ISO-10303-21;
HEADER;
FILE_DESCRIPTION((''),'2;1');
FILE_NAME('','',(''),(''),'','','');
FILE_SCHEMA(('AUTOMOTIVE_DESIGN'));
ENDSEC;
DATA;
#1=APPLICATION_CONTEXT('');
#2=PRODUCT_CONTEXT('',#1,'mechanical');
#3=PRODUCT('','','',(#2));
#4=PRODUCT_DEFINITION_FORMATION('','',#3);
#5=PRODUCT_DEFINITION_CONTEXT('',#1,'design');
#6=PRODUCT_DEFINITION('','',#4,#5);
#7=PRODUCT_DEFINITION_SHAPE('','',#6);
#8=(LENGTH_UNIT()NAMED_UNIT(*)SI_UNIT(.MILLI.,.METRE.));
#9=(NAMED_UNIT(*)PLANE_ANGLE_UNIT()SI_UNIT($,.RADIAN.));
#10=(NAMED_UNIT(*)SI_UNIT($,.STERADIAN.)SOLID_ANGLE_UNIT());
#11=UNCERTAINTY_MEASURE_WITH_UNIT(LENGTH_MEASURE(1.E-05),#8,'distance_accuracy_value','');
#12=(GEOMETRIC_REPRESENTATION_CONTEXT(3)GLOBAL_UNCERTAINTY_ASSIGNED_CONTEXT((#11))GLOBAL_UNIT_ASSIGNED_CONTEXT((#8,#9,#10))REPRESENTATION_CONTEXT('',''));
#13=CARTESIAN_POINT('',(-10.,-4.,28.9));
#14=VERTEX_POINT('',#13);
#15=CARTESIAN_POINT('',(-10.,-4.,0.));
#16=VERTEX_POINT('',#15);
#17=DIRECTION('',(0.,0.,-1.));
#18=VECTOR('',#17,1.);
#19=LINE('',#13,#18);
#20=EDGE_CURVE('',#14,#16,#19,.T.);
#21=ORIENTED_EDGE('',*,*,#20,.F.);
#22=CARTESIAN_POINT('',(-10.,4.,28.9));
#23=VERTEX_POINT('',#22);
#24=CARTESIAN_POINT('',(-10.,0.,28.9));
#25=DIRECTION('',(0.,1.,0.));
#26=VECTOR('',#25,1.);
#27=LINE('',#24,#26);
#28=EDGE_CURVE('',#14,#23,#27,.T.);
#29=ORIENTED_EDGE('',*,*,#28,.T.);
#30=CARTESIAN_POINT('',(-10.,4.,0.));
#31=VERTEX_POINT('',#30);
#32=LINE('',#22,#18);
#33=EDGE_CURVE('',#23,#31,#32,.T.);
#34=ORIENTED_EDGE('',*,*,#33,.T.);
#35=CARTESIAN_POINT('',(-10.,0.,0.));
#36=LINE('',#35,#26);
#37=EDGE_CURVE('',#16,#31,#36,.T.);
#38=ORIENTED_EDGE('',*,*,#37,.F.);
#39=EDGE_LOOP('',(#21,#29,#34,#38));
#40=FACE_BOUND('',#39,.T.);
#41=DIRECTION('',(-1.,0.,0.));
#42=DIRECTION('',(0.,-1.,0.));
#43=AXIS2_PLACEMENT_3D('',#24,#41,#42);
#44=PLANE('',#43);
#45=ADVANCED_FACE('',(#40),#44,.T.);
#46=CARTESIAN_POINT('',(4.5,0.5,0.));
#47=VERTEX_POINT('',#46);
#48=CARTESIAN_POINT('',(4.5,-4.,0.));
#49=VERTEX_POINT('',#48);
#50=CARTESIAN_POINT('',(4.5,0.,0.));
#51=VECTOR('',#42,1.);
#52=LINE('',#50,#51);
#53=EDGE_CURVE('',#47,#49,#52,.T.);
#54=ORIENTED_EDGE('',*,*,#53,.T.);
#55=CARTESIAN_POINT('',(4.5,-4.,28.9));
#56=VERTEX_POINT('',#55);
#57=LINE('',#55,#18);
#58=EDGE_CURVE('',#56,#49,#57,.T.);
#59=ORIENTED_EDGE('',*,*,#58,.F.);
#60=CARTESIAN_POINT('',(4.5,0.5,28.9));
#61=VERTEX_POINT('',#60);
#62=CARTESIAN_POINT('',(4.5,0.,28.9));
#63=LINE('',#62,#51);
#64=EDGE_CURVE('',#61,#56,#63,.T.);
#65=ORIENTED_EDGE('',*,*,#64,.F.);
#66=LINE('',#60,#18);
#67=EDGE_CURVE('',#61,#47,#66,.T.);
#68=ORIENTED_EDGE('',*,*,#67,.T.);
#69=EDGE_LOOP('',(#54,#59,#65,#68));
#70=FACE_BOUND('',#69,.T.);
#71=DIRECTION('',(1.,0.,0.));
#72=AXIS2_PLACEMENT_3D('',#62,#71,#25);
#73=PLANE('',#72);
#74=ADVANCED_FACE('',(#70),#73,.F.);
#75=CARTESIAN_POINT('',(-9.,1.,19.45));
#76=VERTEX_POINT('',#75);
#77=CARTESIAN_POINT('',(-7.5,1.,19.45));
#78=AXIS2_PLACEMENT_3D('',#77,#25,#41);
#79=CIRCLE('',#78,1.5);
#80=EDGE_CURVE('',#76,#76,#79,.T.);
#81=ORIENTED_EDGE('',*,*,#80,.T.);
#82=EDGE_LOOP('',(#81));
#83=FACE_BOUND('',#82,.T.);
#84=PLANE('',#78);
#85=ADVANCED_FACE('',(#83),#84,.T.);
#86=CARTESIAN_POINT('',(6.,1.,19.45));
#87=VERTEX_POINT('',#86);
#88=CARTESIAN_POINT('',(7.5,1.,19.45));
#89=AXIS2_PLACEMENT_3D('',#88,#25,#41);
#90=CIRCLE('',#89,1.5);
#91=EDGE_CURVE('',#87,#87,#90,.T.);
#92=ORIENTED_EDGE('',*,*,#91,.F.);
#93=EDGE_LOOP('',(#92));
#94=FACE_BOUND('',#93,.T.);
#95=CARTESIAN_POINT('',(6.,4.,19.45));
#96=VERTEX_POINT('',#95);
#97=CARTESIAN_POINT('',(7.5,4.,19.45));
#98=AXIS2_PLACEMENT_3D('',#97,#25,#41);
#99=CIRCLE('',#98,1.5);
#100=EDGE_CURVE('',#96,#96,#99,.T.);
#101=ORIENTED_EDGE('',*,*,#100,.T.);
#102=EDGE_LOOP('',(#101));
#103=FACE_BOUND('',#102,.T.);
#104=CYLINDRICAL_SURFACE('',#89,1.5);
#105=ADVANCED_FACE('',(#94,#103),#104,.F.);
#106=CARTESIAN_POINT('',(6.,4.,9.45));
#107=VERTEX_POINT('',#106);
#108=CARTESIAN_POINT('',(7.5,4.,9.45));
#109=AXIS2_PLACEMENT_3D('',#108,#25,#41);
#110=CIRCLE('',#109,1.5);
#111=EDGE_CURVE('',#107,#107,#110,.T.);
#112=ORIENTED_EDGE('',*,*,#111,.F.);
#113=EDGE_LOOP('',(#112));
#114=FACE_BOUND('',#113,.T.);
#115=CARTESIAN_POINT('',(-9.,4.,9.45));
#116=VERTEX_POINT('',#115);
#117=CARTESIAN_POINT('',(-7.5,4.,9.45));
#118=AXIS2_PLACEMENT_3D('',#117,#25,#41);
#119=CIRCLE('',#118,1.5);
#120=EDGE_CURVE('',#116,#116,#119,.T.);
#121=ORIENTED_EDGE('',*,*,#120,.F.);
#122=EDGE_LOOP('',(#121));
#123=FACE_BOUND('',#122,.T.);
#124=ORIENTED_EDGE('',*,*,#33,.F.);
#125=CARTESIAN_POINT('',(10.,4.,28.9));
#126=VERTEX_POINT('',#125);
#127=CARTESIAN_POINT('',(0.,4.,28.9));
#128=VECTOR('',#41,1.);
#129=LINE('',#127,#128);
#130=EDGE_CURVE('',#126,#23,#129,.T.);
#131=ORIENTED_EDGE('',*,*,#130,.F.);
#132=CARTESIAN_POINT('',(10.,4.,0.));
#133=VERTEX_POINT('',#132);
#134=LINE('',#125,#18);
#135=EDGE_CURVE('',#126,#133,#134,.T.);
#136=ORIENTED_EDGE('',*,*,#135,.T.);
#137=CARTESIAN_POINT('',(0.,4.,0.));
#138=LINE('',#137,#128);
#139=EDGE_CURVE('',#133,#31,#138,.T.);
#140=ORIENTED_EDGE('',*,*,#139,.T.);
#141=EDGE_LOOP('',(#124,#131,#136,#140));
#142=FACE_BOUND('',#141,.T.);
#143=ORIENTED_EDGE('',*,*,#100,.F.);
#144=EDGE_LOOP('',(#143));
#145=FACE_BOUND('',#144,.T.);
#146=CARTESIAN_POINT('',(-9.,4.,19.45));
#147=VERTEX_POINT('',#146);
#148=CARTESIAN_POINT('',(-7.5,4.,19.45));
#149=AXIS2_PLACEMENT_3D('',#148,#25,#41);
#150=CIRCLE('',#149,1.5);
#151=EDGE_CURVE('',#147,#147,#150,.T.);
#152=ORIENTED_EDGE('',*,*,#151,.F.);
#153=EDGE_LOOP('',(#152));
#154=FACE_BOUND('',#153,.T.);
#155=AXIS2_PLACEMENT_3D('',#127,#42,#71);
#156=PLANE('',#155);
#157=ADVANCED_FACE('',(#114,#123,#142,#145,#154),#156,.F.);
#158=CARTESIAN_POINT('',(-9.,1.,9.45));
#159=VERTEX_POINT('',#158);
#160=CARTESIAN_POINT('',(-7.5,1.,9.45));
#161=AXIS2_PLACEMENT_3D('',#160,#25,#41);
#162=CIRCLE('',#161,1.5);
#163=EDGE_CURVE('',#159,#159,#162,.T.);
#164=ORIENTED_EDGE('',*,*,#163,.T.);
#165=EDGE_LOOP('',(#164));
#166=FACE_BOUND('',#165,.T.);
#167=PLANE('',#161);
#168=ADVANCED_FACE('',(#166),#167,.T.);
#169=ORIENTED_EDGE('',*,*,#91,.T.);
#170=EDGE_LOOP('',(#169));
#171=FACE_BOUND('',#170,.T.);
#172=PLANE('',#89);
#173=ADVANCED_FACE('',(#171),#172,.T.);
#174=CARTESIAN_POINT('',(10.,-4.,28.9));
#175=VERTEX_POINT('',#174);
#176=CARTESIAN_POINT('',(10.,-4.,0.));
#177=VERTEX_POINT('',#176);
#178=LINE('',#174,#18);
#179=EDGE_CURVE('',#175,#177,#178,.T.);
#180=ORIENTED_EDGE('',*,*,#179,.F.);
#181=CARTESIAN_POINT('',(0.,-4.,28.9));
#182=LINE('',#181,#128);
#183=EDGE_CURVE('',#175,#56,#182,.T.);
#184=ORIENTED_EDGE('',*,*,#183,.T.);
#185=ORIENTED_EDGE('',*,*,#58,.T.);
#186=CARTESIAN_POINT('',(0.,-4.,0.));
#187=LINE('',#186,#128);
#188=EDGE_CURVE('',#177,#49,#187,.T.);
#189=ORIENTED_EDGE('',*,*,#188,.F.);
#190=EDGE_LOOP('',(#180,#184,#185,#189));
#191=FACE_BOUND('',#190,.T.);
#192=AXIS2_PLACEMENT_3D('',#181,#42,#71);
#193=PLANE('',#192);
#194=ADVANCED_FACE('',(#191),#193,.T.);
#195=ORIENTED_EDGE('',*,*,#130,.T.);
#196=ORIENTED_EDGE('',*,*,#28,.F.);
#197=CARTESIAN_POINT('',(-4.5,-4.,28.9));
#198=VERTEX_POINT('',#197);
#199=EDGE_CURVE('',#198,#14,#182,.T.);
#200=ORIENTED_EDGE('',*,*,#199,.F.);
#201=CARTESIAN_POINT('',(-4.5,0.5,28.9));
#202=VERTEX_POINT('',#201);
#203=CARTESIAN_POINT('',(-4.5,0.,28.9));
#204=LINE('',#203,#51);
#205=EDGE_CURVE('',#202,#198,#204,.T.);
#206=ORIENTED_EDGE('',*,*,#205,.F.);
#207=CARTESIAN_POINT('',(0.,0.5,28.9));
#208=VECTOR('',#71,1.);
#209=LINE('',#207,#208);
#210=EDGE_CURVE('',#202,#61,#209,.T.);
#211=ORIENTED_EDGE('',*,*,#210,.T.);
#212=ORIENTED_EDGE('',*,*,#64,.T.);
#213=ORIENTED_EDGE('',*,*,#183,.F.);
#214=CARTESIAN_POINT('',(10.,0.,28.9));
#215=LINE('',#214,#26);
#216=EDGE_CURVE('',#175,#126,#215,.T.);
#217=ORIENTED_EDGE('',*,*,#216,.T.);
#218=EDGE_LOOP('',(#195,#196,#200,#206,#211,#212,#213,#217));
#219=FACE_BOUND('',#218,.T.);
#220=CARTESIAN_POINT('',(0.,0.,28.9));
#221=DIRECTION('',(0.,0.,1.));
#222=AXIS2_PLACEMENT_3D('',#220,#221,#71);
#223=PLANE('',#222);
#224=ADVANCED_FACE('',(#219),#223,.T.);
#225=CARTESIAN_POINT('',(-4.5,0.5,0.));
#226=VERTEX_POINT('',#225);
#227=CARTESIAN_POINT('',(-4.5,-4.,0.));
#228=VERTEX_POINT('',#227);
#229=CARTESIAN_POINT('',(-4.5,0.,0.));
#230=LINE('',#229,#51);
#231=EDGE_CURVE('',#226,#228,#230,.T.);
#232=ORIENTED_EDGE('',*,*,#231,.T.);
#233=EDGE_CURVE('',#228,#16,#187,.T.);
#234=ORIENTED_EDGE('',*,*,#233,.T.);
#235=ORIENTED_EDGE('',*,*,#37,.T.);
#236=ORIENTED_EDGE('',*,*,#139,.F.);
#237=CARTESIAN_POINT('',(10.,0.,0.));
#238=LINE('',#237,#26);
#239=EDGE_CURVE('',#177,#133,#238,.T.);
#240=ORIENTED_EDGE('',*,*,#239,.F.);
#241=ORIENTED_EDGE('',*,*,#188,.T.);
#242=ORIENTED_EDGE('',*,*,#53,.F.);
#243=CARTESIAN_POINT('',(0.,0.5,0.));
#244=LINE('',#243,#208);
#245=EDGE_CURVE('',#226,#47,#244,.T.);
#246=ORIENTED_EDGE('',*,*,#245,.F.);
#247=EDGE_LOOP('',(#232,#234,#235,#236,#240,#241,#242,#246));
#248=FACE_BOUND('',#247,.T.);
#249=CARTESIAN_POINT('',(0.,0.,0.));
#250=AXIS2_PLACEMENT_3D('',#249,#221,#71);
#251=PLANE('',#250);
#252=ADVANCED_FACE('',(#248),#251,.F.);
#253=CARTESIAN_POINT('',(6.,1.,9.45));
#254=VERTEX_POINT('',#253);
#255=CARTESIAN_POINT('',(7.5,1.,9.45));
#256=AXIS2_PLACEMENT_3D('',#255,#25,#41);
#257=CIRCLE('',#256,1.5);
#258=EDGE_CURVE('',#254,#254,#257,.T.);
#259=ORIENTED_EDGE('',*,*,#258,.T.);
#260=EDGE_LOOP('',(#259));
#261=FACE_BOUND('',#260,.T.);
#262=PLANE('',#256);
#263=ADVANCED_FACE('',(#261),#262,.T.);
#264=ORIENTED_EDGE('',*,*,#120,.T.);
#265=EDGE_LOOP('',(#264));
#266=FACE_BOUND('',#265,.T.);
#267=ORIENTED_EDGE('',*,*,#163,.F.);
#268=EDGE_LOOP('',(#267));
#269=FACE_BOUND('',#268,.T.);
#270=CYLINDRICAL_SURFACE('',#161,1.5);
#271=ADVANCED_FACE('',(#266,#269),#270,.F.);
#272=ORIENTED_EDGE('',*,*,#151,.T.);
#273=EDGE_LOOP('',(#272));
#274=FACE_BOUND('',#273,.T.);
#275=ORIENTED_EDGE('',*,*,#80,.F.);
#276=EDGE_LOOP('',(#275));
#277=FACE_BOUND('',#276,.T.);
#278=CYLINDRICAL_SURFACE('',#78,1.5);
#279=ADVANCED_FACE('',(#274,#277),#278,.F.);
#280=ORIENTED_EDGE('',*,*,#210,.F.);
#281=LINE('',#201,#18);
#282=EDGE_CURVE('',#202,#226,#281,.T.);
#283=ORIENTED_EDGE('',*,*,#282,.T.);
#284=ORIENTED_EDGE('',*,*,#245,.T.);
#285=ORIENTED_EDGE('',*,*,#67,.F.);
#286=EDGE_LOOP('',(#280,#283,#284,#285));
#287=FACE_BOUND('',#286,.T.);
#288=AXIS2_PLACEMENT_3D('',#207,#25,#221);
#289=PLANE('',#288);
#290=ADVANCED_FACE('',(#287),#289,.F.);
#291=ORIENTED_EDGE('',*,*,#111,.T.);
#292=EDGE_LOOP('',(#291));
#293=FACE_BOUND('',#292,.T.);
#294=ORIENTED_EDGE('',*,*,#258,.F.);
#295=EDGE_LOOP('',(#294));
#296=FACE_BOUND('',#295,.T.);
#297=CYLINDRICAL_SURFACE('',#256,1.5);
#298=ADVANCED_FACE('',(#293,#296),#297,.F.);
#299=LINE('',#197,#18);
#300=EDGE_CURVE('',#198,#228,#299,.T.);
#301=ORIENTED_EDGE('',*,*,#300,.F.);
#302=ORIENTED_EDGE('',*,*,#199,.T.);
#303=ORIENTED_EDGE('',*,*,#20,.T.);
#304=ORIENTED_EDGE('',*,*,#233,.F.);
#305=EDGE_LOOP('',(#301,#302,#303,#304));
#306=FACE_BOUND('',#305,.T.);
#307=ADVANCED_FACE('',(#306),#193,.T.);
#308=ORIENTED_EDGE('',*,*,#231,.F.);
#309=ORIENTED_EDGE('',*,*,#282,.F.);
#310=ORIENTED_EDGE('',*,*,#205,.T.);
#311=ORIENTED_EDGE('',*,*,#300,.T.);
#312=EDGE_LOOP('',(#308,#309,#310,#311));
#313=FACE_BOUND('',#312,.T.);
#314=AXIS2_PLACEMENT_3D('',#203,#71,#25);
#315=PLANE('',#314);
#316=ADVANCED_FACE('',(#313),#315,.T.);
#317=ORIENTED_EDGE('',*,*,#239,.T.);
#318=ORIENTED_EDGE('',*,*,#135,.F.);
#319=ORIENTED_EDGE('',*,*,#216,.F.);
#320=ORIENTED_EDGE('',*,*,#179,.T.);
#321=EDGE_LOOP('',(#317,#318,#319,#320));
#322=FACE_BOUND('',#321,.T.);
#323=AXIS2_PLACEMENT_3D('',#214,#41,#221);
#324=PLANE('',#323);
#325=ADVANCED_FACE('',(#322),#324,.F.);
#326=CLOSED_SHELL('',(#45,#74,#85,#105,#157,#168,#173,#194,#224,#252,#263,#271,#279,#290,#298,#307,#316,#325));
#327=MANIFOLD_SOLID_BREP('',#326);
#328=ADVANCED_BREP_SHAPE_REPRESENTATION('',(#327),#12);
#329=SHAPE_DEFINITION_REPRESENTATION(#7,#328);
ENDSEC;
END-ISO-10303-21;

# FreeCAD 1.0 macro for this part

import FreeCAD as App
import Part
import Sketcher
from FreeCAD import Vector


def add_polygon(sketch, points):
    """Adds a closed chain of lines whose ends are joined by coincident constraints."""
    first, n = sketch.GeometryCount, len(points)
    for a, b in zip(points, points[1:] + points[:1]):
        sketch.addGeometry(Part.LineSegment(App.Vector(*a, 0), App.Vector(*b, 0)), False)
    for i in range(n):
        sketch.addConstraint(Sketcher.Constraint("Coincident", first + i, 2, first + (i + 1) % n, 1))

doc = App.newDocument("Part")
params = doc.addObject("Spreadsheet::Sheet", "Params")
for row, (alias, value) in enumerate([
    ("sketch1_width", "20 mm"),
    ("sketch1_width2", "9 mm"),
    ("sketch1_height", "8 mm"),
    ("sketch1_height2", "4.5 mm"),
    ("pad1_length", "28.9 mm"),
    ("sketch2_diameter", "3 mm"),
    ("pocket1_length", "3 mm"),
], start=1):
    params.set(f"A{row}", alias)
    params.set(f"B{row}", "=" + value)
    params.setAlias(f"B{row}", alias)

body = doc.addObject("PartDesign::Body", "Body")

# Sketch on XY plane
sketch1 = body.newObject("Sketcher::SketchObject", "Sketch")
sketch1.AttachmentSupport = (doc.getObject("XY_Plane"), [""])
sketch1.MapMode = "FlatFace"
add_polygon(sketch1, [(4.5, -4), (10, -4), (10, 4), (-10, 4), (-10, -4), (-4.5, -4), (-4.5, 0.5), (4.5, 0.5)])  # lines 0-7
sketch1.addConstraint([
    Sketcher.Constraint("Horizontal", 0),
    Sketcher.Constraint("Vertical", 1),
    Sketcher.Constraint("Horizontal", 2),
    Sketcher.Constraint("Vertical", 3),
    Sketcher.Constraint("Horizontal", 4),
    Sketcher.Constraint("Vertical", 5),
    Sketcher.Constraint("Horizontal", 6),
    Sketcher.Constraint("Vertical", 7),
    Sketcher.Constraint("Symmetric", 0, 2, 2, 2, -1, 1),
    Sketcher.Constraint("Symmetric", 4, 2, 7, 2, -2),
    Sketcher.Constraint("DistanceX", 2, 2, 2, 1, 20.0),
    Sketcher.Constraint("DistanceX", 6, 1, 6, 2, 9.0),
    Sketcher.Constraint("DistanceY", 1, 1, 1, 2, 8.0),
    Sketcher.Constraint("DistanceY", 5, 1, 5, 2, 4.5),
])
sketch1.setExpression("Constraints[18]", "Params.sketch1_width")
sketch1.setExpression("Constraints[19]", "Params.sketch1_width2")
sketch1.setExpression("Constraints[20]", "Params.sketch1_height")
sketch1.setExpression("Constraints[21]", "Params.sketch1_height2")
pad1 = body.newObject("PartDesign::Pad", "Pad")
pad1.Profile = sketch1
pad1.setExpression("Length", "Params.pad1_length")

# Sketch on XZ plane
sketch2 = body.newObject("Sketcher::SketchObject", "Sketch001")
sketch2.AttachmentSupport = (doc.getObject("XZ_Plane"), [""])
sketch2.MapMode = "FlatFace"
sketch2.AttachmentOffset = App.Placement(Vector(0, 0, -4), App.Rotation())
sketch2.addGeometry([
    Part.Circle(Vector(-7.5, 9.4, 0), Vector(0, 0, 1), 1.5),
    Part.Circle(Vector(7.5, 9.4, 0), Vector(0, 0, 1), 1.5),
    Part.Circle(Vector(7.5, 19.4, 0), Vector(0, 0, 1), 1.5),
    Part.Circle(Vector(-7.5, 19.4, 0), Vector(0, 0, 1), 1.5),
], False)
sketch2.addConstraint([
    Sketcher.Constraint("Equal", 0, 1),
    Sketcher.Constraint("Equal", 1, 2),
    Sketcher.Constraint("Equal", 2, 3),
    Sketcher.Constraint("Symmetric", 0, 3, 1, 3, -2),
    Sketcher.Constraint("Symmetric", 2, 3, 3, 3, -2),
    Sketcher.Constraint("Vertical", 1, 3, 2, 3),
    Sketcher.Constraint("Diameter", 0, 3.0),
    Sketcher.Constraint("DistanceX", 0, 3, 1, 3, 15.0),
    Sketcher.Constraint("DistanceY", 1, 3, 2, 3, 10.0),
    Sketcher.Constraint("DistanceY", -1, 1, 0, 3, 9.45),
])
sketch2.setExpression("Constraints[6]", "Params.sketch2_diameter")
pocket1 = body.newObject("PartDesign::Pocket", "Pocket")
pocket1.Profile = sketch2
pocket1.setExpression("Length", "Params.pocket1_length")
pocket1.Reversed = True

doc.recompute()
